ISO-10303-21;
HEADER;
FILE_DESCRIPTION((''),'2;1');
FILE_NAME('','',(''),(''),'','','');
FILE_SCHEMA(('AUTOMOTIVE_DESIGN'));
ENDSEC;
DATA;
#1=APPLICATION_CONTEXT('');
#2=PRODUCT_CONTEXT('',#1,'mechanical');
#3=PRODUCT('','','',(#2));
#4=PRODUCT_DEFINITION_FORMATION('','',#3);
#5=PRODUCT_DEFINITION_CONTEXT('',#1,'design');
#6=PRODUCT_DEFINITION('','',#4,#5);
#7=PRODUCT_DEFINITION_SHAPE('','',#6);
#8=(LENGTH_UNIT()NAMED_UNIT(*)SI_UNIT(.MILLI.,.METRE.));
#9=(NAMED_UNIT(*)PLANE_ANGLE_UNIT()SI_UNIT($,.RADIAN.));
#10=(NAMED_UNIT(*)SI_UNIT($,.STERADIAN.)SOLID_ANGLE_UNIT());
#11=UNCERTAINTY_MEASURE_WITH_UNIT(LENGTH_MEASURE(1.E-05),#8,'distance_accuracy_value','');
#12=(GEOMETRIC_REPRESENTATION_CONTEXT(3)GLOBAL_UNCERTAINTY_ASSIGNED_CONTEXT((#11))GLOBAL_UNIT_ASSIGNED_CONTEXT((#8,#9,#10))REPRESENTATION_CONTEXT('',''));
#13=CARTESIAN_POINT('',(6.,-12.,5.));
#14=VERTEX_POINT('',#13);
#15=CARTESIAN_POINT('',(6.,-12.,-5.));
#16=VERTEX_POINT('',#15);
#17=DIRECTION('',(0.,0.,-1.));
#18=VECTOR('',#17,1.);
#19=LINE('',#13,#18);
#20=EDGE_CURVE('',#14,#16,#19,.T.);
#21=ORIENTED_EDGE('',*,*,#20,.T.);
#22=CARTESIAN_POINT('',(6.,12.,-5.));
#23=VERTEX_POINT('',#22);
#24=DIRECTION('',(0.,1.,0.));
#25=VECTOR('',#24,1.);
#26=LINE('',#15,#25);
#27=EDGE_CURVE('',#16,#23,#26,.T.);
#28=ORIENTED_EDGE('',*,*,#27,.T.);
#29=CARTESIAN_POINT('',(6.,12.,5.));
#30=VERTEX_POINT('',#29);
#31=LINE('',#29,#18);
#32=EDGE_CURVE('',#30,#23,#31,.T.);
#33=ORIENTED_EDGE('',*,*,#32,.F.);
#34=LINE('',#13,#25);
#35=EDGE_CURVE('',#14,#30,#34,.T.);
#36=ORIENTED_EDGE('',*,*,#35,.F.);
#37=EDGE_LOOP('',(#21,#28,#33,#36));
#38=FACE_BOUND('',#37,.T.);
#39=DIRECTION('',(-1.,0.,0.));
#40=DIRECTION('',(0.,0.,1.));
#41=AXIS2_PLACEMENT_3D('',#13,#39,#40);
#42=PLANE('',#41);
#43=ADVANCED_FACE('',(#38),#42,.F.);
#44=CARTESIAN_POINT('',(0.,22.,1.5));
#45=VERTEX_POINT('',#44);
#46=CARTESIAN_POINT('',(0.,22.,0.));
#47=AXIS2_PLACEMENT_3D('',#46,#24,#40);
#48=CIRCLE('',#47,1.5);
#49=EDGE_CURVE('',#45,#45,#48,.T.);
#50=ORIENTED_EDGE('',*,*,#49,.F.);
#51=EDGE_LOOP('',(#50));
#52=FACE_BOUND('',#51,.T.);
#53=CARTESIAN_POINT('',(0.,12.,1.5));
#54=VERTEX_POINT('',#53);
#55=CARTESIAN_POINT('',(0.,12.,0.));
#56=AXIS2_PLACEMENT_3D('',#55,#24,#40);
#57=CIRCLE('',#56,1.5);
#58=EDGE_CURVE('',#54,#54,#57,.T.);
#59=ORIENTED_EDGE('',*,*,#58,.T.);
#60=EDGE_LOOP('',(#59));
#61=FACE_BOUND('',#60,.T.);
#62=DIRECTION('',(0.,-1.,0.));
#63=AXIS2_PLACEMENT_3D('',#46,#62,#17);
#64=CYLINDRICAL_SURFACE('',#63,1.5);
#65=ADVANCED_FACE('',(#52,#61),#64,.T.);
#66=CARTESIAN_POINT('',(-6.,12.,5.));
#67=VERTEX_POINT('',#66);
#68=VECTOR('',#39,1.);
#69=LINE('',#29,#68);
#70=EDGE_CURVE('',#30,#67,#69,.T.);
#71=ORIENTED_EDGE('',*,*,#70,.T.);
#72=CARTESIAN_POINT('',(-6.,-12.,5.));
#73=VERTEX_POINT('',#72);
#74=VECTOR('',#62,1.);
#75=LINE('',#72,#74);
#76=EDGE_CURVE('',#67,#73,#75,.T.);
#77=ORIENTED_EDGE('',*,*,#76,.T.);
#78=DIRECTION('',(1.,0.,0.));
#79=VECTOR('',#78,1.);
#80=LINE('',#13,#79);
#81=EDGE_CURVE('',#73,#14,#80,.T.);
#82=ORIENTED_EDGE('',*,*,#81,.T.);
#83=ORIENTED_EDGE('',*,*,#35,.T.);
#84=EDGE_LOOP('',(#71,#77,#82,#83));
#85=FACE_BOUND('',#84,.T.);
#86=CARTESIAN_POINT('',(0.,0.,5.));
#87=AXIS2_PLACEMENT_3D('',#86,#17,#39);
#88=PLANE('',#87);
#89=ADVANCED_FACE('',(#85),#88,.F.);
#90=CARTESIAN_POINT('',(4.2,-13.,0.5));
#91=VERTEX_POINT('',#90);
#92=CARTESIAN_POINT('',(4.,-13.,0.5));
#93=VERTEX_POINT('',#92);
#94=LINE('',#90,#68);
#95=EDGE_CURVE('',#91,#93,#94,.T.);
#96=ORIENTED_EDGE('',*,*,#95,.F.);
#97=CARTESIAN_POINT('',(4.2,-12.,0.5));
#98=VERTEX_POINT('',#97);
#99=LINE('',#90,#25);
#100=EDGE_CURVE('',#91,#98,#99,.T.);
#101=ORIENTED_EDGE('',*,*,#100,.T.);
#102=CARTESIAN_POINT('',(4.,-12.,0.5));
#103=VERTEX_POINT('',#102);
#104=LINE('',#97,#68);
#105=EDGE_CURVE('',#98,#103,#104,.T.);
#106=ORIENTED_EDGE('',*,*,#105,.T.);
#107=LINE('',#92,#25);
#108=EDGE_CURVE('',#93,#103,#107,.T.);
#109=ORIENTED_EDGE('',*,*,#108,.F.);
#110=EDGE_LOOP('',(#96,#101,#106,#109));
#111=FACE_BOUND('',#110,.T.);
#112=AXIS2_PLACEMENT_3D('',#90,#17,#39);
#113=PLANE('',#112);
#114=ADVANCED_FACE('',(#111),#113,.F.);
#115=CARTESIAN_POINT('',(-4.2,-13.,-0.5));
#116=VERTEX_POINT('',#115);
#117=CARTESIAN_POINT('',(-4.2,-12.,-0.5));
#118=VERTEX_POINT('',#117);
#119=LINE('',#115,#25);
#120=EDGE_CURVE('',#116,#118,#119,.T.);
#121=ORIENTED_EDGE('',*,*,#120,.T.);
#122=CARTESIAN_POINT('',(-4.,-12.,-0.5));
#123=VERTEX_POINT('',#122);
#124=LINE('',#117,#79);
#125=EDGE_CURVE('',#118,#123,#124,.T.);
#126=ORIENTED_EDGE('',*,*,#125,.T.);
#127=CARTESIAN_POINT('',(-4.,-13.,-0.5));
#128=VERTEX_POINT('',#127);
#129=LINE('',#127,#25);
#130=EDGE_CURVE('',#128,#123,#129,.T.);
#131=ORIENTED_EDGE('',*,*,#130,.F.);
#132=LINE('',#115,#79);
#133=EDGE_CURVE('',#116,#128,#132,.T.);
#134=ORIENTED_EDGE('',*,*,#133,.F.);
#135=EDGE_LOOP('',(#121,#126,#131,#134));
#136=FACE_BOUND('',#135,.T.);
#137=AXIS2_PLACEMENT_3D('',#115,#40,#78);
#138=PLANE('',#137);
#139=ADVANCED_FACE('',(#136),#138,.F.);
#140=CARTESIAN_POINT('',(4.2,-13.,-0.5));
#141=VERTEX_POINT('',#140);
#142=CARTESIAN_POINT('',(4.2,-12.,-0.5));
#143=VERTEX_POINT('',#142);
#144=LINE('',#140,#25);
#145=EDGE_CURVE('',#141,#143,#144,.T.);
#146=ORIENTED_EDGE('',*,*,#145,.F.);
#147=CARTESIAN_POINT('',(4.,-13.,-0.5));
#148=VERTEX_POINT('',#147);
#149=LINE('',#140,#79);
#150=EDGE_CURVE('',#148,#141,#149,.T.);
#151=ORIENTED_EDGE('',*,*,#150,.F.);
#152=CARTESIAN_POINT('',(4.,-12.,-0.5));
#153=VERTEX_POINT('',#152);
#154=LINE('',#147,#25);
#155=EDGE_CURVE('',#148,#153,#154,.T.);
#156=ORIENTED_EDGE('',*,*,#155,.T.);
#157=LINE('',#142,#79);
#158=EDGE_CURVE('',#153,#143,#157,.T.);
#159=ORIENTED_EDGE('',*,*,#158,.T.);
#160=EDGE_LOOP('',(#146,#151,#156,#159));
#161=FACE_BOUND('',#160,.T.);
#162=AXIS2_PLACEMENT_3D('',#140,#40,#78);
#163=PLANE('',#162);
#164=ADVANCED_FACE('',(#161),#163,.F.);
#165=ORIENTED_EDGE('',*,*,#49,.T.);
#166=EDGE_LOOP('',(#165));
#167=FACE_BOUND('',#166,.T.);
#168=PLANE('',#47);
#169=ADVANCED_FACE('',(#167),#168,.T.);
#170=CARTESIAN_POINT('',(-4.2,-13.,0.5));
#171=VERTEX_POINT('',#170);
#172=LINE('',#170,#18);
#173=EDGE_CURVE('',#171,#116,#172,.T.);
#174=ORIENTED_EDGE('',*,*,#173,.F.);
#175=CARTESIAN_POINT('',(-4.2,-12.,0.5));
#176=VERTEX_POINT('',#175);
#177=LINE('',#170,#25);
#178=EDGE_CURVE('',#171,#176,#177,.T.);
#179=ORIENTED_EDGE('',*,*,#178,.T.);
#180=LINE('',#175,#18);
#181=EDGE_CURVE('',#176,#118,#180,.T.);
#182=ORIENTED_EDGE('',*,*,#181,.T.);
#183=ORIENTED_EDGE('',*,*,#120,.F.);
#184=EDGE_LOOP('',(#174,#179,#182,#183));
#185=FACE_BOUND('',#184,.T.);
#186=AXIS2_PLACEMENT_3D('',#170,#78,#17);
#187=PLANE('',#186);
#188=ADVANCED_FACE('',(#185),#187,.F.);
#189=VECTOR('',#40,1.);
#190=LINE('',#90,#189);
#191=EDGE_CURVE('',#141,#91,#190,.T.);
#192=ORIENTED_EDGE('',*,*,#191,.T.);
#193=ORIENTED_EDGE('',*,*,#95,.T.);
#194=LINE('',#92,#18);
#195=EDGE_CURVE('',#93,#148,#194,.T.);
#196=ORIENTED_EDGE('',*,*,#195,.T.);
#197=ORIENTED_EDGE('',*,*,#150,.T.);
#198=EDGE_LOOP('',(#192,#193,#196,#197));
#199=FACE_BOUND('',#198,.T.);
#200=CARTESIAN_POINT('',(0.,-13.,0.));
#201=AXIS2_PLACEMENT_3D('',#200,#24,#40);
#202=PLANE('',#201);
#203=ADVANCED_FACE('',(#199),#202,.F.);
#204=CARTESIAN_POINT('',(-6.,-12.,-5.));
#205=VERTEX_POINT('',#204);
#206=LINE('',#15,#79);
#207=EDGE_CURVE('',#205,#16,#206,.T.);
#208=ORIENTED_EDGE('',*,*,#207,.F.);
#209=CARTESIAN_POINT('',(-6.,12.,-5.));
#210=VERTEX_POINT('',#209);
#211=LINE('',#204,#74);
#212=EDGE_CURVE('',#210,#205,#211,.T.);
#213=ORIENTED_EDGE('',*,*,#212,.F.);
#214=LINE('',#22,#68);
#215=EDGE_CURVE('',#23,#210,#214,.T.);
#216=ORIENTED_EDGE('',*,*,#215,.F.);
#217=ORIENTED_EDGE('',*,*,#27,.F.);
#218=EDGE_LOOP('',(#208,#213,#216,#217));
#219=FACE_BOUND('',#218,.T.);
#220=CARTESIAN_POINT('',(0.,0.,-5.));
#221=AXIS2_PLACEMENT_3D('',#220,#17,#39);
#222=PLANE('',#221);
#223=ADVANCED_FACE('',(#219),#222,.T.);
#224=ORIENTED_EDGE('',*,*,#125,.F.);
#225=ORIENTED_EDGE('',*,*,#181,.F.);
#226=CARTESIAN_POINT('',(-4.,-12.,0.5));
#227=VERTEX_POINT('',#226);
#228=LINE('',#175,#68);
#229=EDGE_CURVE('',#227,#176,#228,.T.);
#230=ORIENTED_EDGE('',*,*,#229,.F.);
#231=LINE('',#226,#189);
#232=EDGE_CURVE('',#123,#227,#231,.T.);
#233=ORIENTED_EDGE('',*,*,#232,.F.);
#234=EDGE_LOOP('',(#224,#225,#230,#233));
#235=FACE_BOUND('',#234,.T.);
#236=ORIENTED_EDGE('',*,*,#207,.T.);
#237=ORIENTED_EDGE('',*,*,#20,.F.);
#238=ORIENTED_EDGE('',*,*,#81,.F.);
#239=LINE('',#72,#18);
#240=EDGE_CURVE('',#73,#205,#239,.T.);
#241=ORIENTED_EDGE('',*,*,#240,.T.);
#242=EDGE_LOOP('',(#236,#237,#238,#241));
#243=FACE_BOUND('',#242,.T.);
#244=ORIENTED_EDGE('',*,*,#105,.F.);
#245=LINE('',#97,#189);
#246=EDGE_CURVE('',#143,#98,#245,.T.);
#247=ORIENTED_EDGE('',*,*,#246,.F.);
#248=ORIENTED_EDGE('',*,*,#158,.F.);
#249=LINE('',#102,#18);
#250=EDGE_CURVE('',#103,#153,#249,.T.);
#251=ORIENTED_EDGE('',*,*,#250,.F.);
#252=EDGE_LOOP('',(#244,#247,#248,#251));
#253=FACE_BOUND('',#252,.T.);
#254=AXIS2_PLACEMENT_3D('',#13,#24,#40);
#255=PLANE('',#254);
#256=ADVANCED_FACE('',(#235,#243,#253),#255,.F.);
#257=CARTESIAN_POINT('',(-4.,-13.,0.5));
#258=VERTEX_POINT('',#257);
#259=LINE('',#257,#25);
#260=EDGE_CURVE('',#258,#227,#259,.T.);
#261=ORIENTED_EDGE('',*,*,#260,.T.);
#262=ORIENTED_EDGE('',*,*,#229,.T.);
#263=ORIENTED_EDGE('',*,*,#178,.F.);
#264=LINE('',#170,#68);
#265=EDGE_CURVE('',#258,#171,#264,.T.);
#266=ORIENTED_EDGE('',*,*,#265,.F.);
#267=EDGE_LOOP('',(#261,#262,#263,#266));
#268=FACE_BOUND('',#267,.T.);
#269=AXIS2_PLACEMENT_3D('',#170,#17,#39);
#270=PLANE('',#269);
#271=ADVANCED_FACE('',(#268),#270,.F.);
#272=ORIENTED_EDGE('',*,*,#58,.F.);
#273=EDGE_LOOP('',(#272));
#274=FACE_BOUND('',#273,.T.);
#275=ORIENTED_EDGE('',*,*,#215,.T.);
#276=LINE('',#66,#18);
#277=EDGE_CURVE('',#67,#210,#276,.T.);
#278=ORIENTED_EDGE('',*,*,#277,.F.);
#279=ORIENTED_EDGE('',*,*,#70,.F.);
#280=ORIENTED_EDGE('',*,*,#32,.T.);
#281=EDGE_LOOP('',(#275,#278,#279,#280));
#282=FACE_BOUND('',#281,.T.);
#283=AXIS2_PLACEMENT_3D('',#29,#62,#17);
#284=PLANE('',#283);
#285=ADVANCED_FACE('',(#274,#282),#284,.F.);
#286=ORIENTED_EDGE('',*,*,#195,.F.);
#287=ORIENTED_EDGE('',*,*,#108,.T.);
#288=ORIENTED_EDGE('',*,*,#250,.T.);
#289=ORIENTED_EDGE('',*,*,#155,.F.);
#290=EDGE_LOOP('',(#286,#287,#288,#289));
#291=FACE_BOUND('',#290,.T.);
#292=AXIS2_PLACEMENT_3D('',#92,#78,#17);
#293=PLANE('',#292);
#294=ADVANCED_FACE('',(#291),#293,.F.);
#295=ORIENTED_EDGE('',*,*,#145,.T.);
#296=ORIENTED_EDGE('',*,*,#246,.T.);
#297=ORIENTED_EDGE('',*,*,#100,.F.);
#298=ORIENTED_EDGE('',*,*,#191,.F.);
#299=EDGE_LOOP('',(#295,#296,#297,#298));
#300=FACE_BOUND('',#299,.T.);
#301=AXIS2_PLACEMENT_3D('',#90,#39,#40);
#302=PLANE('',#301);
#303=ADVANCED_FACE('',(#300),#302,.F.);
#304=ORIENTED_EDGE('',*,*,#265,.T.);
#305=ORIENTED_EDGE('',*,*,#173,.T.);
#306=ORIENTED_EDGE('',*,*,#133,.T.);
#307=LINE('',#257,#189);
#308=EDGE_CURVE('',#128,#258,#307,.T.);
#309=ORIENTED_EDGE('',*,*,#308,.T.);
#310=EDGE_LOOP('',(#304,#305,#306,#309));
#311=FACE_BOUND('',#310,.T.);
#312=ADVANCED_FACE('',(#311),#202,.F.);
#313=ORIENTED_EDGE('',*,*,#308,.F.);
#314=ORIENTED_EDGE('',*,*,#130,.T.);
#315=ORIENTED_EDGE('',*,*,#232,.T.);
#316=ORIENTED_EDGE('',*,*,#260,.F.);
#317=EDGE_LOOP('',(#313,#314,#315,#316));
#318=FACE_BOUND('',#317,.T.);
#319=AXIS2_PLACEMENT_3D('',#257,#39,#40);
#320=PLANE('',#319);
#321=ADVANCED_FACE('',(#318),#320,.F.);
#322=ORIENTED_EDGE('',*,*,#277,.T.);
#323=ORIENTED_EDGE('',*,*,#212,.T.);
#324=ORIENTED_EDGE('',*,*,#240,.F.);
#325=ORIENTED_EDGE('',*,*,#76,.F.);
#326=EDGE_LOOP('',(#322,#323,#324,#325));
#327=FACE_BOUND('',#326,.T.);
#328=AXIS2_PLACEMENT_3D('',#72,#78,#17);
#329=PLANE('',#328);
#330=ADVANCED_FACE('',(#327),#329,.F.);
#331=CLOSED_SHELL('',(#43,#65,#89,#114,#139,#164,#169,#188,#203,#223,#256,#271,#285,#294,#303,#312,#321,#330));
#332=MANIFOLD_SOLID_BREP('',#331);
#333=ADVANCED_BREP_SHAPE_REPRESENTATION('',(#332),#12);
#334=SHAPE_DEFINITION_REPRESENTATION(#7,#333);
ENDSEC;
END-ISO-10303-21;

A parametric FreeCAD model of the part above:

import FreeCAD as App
import Part
import Sketcher

doc = App.newDocument("Part")
body = doc.addObject("PartDesign::Body", "Body")

sketch1 = doc.addObject("Sketcher::SketchObject", "Sketch")
body.addObject(sketch1)
sketch1.AttachmentSupport = (doc.XY_Plane, [""])
sketch1.MapMode = "FlatFace"
sketch1.addGeometry([
    Part.LineSegment(App.Vector(-6, -12, 0), App.Vector(6, -12, 0)),
    Part.LineSegment(App.Vector(6, -12, 0), App.Vector(6, 12, 0)),
    Part.LineSegment(App.Vector(6, 12, 0), App.Vector(-6, 12, 0)),
    Part.LineSegment(App.Vector(-6, 12, 0), App.Vector(-6, -12, 0)),
], False)
sketch1.addConstraint([
    Sketcher.Constraint("Coincident", 0, 2, 1, 1),
    Sketcher.Constraint("Coincident", 1, 2, 2, 1),
    Sketcher.Constraint("Coincident", 2, 2, 3, 1),
    Sketcher.Constraint("Coincident", 3, 2, 0, 1),
    Sketcher.Constraint("Horizontal", 0),
    Sketcher.Constraint("Vertical", 1),
    Sketcher.Constraint("Horizontal", 2),
    Sketcher.Constraint("Vertical", 3),
    Sketcher.Constraint("Symmetric", 0, 2, 2, 2, -1, 1),
    Sketcher.Constraint("DistanceX", 0, 1, 0, 2, 12.0),
    Sketcher.Constraint("DistanceY", 1, 1, 1, 2, 24.0),
])
pad1 = doc.addObject("PartDesign::Pad", "Pad")
body.addObject(pad1)
pad1.Profile = sketch1
pad1.Length = 10
pad1.Midplane = True

sketch2 = doc.addObject("Sketcher::SketchObject", "Sketch001")
body.addObject(sketch2)
sketch2.AttachmentSupport = (doc.XZ_Plane, [""])
sketch2.MapMode = "FlatFace"
sketch2.AttachmentOffset = App.Placement(App.Vector(0, 0, -12), App.Rotation())
sketch2.addGeometry(Part.Circle(App.Vector(0, 0, 0), App.Vector(0, 0, 1), 1.5), False)
sketch2.addConstraint([
    Sketcher.Constraint("Coincident", 0, 3, -1, 1),
    Sketcher.Constraint("Diameter", 0, 3.0),
])
pad2 = doc.addObject("PartDesign::Pad", "Pad001")
body.addObject(pad2)
pad2.Profile = sketch2
pad2.Length = 10
pad2.Reversed = True

sketch3 = doc.addObject("Sketcher::SketchObject", "Sketch002")
body.addObject(sketch3)
sketch3.AttachmentSupport = (doc.XZ_Plane, [""])
sketch3.MapMode = "FlatFace"
sketch3.AttachmentOffset = App.Placement(App.Vector(0, 0, 12), App.Rotation())
sketch3.addGeometry([
    Part.LineSegment(App.Vector(4, 0.5, 0), App.Vector(4, -0.5, 0)),
    Part.LineSegment(App.Vector(4, -0.5, 0), App.Vector(4.2, -0.5, 0)),
    Part.LineSegment(App.Vector(4.2, -0.5, 0), App.Vector(4.2, 0.5, 0)),
    Part.LineSegment(App.Vector(4.2, 0.5, 0), App.Vector(4, 0.5, 0)),
    Part.LineSegment(App.Vector(-4.2, 0.5, 0), App.Vector(-4.2, -0.5, 0)),
    Part.LineSegment(App.Vector(-4.2, -0.5, 0), App.Vector(-4, -0.5, 0)),
    Part.LineSegment(App.Vector(-4, -0.5, 0), App.Vector(-4, 0.5, 0)),
    Part.LineSegment(App.Vector(-4, 0.5, 0), App.Vector(-4.2, 0.5, 0)),
], False)
sketch3.addConstraint([
    Sketcher.Constraint("Coincident", 0, 2, 1, 1),
    Sketcher.Constraint("Coincident", 1, 2, 2, 1),
    Sketcher.Constraint("Coincident", 2, 2, 3, 1),
    Sketcher.Constraint("Coincident", 3, 2, 0, 1),
    Sketcher.Constraint("Coincident", 4, 2, 5, 1),
    Sketcher.Constraint("Coincident", 5, 2, 6, 1),
    Sketcher.Constraint("Coincident", 6, 2, 7, 1),
    Sketcher.Constraint("Coincident", 7, 2, 4, 1),
    Sketcher.Constraint("Vertical", 0),
    Sketcher.Constraint("Horizontal", 1),
    Sketcher.Constraint("Vertical", 2),
    Sketcher.Constraint("Horizontal", 3),
    Sketcher.Constraint("Vertical", 4),
    Sketcher.Constraint("Horizontal", 5),
    Sketcher.Constraint("Vertical", 6),
    Sketcher.Constraint("Horizontal", 7),
    Sketcher.Constraint("Symmetric", 2, 2, 4, 2, -1, 1),
    Sketcher.Constraint("Symmetric", 0, 2, 6, 2, -1, 1),
    Sketcher.Constraint("Horizontal", 1, 2, 4, 2),
    Sketcher.Constraint("DistanceY", 0, 2, 0, 1, 1.0),
    Sketcher.Constraint("DistanceX", 1, 1, 1, 2, 0.2),
    Sketcher.Constraint("DistanceX", -1, 1, 0, 2, 4.0),
])
pad3 = doc.addObject("PartDesign::Pad", "Pad002")
body.addObject(pad3)
pad3.Profile = sketch3
pad3.Length = 1

doc.recompute()
